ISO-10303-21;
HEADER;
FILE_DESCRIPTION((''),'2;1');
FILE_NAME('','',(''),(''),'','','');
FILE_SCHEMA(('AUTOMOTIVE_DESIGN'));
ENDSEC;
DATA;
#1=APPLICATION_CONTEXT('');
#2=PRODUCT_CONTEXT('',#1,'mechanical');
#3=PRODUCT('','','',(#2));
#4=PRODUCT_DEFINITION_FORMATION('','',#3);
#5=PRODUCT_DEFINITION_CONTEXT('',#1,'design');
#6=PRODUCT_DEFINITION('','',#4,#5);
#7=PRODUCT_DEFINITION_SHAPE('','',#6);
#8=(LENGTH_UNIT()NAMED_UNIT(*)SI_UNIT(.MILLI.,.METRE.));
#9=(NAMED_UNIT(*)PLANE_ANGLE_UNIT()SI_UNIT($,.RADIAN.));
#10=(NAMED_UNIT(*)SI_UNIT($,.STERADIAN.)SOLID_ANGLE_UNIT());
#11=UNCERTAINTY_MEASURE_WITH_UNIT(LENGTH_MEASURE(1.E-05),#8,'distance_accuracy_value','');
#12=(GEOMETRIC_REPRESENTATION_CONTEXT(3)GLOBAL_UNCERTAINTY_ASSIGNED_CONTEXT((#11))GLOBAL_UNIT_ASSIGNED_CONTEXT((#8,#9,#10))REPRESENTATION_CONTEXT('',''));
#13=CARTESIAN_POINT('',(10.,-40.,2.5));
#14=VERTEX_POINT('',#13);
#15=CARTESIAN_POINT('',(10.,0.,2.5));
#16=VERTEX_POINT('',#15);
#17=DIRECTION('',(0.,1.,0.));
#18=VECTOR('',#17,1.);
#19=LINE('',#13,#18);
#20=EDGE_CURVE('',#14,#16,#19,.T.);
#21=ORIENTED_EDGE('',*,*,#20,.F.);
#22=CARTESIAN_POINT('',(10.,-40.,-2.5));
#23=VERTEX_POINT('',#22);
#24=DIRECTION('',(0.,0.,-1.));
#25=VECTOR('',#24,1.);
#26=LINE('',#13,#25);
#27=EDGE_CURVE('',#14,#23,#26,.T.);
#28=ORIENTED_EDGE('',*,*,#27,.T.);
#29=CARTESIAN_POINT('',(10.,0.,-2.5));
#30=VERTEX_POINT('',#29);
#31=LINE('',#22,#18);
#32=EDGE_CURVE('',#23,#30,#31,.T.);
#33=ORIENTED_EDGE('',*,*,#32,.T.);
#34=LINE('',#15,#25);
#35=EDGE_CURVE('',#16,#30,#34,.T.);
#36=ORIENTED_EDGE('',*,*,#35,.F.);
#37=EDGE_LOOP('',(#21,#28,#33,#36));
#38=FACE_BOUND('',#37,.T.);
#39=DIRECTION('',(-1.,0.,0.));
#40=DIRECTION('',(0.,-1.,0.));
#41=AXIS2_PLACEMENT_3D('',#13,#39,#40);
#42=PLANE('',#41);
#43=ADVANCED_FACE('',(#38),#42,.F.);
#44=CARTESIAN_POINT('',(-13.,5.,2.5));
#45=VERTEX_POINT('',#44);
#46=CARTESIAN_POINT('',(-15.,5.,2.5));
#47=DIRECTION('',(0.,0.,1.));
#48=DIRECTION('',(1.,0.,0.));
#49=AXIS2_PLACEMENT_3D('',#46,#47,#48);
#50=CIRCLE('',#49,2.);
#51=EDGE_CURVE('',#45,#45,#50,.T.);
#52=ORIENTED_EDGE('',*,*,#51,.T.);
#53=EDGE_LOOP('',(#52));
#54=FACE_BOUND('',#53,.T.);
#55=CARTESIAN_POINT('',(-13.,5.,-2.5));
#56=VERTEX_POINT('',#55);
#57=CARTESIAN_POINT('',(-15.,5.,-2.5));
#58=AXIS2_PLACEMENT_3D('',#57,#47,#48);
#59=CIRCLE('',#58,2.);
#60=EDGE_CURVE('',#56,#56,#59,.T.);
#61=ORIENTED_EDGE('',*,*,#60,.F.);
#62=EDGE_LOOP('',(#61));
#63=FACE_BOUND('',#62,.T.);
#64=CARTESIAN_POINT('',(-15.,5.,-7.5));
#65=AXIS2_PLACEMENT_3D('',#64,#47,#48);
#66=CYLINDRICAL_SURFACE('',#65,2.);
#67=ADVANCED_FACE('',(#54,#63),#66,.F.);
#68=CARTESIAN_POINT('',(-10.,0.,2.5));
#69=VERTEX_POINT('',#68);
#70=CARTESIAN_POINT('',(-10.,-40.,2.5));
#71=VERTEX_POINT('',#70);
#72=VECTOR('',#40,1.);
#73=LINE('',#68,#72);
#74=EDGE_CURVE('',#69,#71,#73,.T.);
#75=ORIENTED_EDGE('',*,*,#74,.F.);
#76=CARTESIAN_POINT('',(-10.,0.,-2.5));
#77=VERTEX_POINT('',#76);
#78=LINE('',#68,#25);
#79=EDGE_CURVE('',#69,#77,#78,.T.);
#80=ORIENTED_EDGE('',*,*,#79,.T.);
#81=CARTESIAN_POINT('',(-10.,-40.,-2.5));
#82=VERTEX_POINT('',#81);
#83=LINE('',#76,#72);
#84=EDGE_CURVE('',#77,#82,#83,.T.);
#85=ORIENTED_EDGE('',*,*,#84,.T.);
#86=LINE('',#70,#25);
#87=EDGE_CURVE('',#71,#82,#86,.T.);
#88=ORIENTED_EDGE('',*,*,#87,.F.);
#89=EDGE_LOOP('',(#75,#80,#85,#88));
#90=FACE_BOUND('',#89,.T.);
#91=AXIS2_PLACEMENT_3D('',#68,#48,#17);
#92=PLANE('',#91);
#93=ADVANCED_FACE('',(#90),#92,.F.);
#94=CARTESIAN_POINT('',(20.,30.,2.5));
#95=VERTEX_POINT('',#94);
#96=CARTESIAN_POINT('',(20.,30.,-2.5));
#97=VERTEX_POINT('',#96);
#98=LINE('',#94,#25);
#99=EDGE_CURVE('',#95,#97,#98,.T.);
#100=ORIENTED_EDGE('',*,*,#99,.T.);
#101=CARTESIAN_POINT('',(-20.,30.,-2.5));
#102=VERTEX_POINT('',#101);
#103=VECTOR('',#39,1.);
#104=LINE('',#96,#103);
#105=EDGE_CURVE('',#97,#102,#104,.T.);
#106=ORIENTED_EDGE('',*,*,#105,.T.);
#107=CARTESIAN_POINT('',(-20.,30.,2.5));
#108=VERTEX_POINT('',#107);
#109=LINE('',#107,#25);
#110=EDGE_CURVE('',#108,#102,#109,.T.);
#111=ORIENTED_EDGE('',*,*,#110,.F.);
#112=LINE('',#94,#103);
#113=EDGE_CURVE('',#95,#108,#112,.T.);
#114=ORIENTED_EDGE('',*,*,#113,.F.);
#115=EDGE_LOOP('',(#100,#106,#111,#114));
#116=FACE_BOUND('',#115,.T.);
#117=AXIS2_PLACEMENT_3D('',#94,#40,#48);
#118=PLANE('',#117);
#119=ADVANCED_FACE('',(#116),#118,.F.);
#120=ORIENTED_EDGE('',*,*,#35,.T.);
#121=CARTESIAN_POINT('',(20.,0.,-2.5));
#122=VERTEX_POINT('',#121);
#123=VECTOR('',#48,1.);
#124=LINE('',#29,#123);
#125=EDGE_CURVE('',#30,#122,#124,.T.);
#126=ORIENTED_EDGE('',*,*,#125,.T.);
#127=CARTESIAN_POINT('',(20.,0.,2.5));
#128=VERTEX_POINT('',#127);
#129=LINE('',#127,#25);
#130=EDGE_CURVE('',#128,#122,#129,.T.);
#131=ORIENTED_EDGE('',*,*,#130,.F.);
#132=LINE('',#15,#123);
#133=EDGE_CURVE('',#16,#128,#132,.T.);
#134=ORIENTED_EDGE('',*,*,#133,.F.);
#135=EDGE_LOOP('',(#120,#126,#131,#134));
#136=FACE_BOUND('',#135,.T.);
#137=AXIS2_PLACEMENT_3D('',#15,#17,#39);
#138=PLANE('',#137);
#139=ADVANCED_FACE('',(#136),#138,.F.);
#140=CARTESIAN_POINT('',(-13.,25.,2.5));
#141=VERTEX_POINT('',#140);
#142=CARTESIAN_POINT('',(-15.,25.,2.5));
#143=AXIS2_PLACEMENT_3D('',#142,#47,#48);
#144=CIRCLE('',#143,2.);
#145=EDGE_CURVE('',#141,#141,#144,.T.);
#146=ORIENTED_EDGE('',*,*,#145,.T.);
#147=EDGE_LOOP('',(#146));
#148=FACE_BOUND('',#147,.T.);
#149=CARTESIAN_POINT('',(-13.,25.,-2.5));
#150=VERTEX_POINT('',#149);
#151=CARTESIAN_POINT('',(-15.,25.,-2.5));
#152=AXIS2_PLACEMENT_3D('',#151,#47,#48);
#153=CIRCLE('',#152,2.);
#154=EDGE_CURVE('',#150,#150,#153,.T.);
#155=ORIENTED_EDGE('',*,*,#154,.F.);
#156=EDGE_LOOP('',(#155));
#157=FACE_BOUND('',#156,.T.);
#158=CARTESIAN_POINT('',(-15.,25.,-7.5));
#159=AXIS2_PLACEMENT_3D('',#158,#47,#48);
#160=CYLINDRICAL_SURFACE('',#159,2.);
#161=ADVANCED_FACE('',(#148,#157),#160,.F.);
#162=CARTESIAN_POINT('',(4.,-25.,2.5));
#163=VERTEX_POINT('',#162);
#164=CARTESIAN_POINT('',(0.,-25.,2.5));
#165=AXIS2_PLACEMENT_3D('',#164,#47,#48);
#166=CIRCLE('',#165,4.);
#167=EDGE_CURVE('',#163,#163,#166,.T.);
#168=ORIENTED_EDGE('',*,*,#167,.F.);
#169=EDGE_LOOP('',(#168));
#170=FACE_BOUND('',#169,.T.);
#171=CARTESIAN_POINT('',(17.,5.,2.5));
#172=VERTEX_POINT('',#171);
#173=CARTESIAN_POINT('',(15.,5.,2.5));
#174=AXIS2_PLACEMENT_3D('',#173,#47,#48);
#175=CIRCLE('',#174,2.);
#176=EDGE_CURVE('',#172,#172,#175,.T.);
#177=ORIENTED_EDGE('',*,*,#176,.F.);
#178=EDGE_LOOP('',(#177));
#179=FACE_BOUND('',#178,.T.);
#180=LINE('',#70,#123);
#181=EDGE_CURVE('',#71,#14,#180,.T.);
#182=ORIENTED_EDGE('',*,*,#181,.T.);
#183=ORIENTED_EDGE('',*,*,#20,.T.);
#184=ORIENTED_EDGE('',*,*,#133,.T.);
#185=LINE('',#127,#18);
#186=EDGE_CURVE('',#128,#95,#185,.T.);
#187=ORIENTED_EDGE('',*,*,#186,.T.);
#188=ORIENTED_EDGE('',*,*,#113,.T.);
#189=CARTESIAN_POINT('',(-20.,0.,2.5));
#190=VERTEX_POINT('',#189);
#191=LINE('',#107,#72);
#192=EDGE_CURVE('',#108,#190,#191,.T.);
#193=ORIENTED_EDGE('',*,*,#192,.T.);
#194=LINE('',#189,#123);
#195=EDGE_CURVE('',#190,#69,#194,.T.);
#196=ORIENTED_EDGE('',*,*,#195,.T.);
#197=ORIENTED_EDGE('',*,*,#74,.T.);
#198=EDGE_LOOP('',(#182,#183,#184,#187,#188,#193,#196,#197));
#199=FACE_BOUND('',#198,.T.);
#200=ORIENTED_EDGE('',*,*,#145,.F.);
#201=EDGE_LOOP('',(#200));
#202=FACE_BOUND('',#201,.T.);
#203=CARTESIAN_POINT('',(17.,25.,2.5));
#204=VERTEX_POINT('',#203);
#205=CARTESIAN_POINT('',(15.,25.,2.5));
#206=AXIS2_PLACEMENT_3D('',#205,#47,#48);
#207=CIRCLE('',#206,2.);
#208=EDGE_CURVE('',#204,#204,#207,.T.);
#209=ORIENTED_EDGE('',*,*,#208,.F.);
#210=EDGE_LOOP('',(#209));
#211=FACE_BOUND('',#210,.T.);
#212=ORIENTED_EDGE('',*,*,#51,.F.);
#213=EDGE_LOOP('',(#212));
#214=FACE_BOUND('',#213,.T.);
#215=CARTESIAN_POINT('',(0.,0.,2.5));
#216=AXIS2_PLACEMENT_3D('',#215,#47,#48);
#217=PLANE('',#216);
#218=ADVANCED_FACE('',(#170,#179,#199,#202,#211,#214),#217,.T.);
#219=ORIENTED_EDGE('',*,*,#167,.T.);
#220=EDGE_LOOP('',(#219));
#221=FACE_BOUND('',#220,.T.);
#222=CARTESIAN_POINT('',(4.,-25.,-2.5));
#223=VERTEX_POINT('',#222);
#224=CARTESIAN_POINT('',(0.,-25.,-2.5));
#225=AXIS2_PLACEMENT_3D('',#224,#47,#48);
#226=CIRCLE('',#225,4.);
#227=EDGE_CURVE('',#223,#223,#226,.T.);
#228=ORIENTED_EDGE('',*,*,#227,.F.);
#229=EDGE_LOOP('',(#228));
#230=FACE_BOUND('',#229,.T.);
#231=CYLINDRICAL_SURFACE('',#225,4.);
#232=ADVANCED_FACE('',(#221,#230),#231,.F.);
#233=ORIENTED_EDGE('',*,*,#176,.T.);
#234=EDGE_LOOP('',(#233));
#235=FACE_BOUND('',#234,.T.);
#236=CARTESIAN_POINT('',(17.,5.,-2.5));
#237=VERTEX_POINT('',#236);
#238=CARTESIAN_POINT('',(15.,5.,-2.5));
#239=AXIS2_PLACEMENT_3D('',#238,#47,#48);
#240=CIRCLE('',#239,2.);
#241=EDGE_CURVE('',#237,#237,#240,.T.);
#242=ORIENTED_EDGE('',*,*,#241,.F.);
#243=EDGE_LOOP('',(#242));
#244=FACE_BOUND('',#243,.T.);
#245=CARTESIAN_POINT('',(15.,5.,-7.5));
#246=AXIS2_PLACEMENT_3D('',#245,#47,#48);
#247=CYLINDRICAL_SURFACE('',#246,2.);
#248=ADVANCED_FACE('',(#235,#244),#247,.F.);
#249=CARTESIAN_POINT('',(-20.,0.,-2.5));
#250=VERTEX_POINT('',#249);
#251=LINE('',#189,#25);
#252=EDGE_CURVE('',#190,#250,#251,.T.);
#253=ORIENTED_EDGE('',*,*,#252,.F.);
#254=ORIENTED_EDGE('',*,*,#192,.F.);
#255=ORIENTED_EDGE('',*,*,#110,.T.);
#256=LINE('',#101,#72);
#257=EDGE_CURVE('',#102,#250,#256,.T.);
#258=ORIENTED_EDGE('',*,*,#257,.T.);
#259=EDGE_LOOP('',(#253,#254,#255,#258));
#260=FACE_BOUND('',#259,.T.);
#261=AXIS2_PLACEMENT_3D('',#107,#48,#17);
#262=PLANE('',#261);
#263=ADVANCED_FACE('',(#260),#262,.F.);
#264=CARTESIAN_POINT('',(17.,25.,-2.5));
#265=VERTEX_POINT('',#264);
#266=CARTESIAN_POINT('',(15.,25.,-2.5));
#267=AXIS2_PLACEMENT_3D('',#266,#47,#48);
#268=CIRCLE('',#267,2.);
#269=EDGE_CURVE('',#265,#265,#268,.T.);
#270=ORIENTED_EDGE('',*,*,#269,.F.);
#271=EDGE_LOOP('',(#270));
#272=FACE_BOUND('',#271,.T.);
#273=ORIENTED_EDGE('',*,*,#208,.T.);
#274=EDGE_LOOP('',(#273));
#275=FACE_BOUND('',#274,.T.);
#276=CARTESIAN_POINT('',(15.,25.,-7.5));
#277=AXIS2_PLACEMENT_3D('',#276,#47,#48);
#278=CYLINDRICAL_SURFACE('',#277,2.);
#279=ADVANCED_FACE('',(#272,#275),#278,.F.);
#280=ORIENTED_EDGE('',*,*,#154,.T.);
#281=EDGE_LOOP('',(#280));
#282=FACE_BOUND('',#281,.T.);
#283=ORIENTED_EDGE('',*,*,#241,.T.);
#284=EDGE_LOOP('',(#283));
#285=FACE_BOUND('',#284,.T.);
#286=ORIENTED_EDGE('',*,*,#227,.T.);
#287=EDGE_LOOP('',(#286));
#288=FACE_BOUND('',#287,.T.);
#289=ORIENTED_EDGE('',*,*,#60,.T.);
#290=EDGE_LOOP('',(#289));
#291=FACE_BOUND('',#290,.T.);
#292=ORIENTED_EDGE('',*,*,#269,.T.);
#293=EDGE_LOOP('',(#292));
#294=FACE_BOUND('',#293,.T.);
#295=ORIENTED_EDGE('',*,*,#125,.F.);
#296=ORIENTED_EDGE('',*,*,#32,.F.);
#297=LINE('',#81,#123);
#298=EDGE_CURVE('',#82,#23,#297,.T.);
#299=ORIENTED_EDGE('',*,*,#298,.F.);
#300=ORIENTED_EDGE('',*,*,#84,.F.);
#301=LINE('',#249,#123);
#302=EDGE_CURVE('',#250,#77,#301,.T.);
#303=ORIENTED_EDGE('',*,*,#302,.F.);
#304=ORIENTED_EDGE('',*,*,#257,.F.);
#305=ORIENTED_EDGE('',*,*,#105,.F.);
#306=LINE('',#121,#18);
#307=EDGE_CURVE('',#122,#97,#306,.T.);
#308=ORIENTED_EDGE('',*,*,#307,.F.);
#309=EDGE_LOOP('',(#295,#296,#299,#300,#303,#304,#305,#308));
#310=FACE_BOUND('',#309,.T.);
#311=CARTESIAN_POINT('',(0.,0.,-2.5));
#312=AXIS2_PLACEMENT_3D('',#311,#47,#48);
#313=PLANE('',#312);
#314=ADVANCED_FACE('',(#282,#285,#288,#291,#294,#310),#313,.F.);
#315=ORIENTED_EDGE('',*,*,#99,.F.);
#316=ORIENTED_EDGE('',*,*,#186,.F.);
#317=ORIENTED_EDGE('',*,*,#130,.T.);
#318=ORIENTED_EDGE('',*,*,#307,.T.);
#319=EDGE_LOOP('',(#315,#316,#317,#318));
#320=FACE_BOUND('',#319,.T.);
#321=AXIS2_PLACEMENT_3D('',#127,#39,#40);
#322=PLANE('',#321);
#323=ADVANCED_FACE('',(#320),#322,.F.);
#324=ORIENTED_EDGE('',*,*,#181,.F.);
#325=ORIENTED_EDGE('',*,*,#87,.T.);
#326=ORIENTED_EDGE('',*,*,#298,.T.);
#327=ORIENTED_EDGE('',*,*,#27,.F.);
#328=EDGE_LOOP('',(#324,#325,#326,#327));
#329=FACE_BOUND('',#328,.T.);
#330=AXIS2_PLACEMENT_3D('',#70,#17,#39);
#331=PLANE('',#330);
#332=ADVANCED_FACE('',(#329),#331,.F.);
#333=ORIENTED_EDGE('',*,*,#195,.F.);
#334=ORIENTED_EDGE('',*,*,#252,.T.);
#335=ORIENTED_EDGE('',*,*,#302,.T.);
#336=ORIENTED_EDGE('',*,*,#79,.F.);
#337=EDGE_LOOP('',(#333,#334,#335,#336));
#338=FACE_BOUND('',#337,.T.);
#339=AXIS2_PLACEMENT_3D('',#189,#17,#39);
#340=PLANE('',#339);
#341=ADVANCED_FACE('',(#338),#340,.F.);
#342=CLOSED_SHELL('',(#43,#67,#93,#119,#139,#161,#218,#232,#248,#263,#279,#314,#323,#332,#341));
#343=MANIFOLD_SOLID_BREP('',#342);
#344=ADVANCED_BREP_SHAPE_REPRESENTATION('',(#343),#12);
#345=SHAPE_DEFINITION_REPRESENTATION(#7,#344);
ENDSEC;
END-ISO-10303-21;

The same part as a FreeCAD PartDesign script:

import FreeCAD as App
import Part
import Sketcher
from FreeCAD import Vector


def add_polygon(sketch, points):
    """Adds a closed chain of lines whose ends are joined by coincident constraints."""
    first, n = sketch.GeometryCount, len(points)
    for a, b in zip(points, points[1:] + points[:1]):
        sketch.addGeometry(Part.LineSegment(App.Vector(*a, 0), App.Vector(*b, 0)), False)
    for i in range(n):
        sketch.addConstraint(Sketcher.Constraint("Coincident", first + i, 2, first + (i + 1) % n, 1))

doc = App.newDocument("Part")
params = doc.addObject("Spreadsheet::Sheet", "Params")
for row, (alias, value) in enumerate([
    ("sketch1_width", "10 mm"),
    ("sketch1_width2", "20 mm"),
    ("sketch1_height", "30 mm"),
    ("pad1_length", "5 mm"),
    ("sketch2_diameter", "5 mm"),
    ("sketch2_diameter2", "8 mm"),
    ("sketch3_diameter", "4 mm"),
    ("pocket2_length", "10 mm"),
], start=1):
    params.set(f"A{row}", alias)
    params.set(f"B{row}", "=" + value)
    params.setAlias(f"B{row}", alias)

body = doc.addObject("PartDesign::Body", "Body")

sketch1 = body.newObject("Sketcher::SketchObject", "Sketch")
sketch1.AttachmentSupport = (doc.getObject("XY_Plane"), [""])
sketch1.MapMode = "FlatFace"
add_polygon(sketch1, [(-20, 30), (-20, 0), (-10, 0), (-10, -40), (10, -40), (10, 0), (20, 0), (20, 30)])
sketch1.addConstraint([
    Sketcher.Constraint("Vertical", 0),
    Sketcher.Constraint("Horizontal", 1),
    Sketcher.Constraint("Vertical", 2),
    Sketcher.Constraint("Horizontal", 3),
    Sketcher.Constraint("Vertical", 4),
    Sketcher.Constraint("Horizontal", 5),
    Sketcher.Constraint("Vertical", 6),
    Sketcher.Constraint("Horizontal", 7),
    Sketcher.Constraint("Symmetric", 1, 2, 4, 2, -1, 1),
    Sketcher.Constraint("Symmetric", 0, 2, 5, 2, -2),
    Sketcher.Constraint("Equal", 7, 2),
    Sketcher.Constraint("DistanceX", 1, 1, 1, 2, 10.0),
    Sketcher.Constraint("DistanceX", 3, 1, 3, 2, 20.0),
    Sketcher.Constraint("DistanceY", 0, 2, 0, 1, 30.0),
])
sketch1.setExpression("Constraints[19]", "Params.sketch1_width")
sketch1.setExpression("Constraints[20]", "Params.sketch1_width2")
sketch1.setExpression("Constraints[21]", "Params.sketch1_height")
pad1 = body.newObject("PartDesign::Pad", "Pad")
pad1.Profile = sketch1
pad1.setExpression("Length", "Params.pad1_length")
pad1.Midplane = True

sketch2 = body.newObject("Sketcher::SketchObject", "Sketch001")
sketch2.AttachmentSupport = (doc.getObject("XY_Plane"), [""])
sketch2.MapMode = "FlatFace"
sketch2.AttachmentOffset = App.Placement(Vector(0, 0, 2.5), App.Rotation())
sketch2.addGeometry([
    Part.Circle(Vector(-25, 20, 0), Vector(0, 0, 1), 2.5),
    Part.Circle(Vector(25, 20, 0), Vector(0, 0, 1), 2.5),
    Part.Circle(Vector(0, -25, 0), Vector(0, 0, 1), 4),
], False)
sketch2.addConstraint([
    Sketcher.Constraint("Equal", 0, 1),
    Sketcher.Constraint("Symmetric", 0, 3, 1, 3, -2),
    Sketcher.Constraint("PointOnObject", 2, 3, -2),
    Sketcher.Constraint("Diameter", 0, 5.0),
    Sketcher.Constraint("Diameter", 2, 8.0),
    Sketcher.Constraint("DistanceX", 0, 3, -1, 1, 25.0),
    Sketcher.Constraint("DistanceY", -1, 1, 0, 3, 20.0),
    Sketcher.Constraint("DistanceY", 2, 3, -1, 1, 25.0),
])
sketch2.setExpression("Constraints[3]", "Params.sketch2_diameter")
sketch2.setExpression("Constraints[4]", "Params.sketch2_diameter2")
pocket1 = body.newObject("PartDesign::Pocket", "Pocket")
pocket1.Profile = sketch2
pocket1.Type = "ThroughAll"

sketch3 = body.newObject("Sketcher::SketchObject", "Sketch002")
sketch3.AttachmentSupport = (doc.getObject("XY_Plane"), [""])
sketch3.MapMode = "FlatFace"
sketch3.AttachmentOffset = App.Placement(Vector(0, 0, 2.5), App.Rotation())
sketch3.addGeometry([
    Part.Circle(Vector(-15, 25, 0), Vector(0, 0, 1), 2),
    Part.Circle(Vector(15, 25, 0), Vector(0, 0, 1), 2),
    Part.Circle(Vector(15, 5, 0), Vector(0, 0, 1), 2),
    Part.Circle(Vector(-15, 5, 0), Vector(0, 0, 1), 2),
], False)
sketch3.addConstraint([
    Sketcher.Constraint("Equal", 0, 1),
    Sketcher.Constraint("Equal", 1, 2),
    Sketcher.Constraint("Equal", 2, 3),
    Sketcher.Constraint("Symmetric", 0, 3, 1, 3, -2),
    Sketcher.Constraint("Symmetric", 2, 3, 3, 3, -2),
    Sketcher.Constraint("Vertical", 1, 3, 2, 3),
    Sketcher.Constraint("Diameter", 0, 4.0),
    Sketcher.Constraint("DistanceX", 0, 3, -1, 1, 15.0),
    Sketcher.Constraint("DistanceY", -1, 1, 0, 3, 25.0),
    Sketcher.Constraint("DistanceY", -1, 1, 2, 3, 5.0),
])
sketch3.setExpression("Constraints[6]", "Params.sketch3_diameter")
pocket2 = body.newObject("PartDesign::Pocket", "Pocket001")
pocket2.Profile = sketch3
pocket2.setExpression("Length", "Params.pocket2_length")

doc.recompute()
